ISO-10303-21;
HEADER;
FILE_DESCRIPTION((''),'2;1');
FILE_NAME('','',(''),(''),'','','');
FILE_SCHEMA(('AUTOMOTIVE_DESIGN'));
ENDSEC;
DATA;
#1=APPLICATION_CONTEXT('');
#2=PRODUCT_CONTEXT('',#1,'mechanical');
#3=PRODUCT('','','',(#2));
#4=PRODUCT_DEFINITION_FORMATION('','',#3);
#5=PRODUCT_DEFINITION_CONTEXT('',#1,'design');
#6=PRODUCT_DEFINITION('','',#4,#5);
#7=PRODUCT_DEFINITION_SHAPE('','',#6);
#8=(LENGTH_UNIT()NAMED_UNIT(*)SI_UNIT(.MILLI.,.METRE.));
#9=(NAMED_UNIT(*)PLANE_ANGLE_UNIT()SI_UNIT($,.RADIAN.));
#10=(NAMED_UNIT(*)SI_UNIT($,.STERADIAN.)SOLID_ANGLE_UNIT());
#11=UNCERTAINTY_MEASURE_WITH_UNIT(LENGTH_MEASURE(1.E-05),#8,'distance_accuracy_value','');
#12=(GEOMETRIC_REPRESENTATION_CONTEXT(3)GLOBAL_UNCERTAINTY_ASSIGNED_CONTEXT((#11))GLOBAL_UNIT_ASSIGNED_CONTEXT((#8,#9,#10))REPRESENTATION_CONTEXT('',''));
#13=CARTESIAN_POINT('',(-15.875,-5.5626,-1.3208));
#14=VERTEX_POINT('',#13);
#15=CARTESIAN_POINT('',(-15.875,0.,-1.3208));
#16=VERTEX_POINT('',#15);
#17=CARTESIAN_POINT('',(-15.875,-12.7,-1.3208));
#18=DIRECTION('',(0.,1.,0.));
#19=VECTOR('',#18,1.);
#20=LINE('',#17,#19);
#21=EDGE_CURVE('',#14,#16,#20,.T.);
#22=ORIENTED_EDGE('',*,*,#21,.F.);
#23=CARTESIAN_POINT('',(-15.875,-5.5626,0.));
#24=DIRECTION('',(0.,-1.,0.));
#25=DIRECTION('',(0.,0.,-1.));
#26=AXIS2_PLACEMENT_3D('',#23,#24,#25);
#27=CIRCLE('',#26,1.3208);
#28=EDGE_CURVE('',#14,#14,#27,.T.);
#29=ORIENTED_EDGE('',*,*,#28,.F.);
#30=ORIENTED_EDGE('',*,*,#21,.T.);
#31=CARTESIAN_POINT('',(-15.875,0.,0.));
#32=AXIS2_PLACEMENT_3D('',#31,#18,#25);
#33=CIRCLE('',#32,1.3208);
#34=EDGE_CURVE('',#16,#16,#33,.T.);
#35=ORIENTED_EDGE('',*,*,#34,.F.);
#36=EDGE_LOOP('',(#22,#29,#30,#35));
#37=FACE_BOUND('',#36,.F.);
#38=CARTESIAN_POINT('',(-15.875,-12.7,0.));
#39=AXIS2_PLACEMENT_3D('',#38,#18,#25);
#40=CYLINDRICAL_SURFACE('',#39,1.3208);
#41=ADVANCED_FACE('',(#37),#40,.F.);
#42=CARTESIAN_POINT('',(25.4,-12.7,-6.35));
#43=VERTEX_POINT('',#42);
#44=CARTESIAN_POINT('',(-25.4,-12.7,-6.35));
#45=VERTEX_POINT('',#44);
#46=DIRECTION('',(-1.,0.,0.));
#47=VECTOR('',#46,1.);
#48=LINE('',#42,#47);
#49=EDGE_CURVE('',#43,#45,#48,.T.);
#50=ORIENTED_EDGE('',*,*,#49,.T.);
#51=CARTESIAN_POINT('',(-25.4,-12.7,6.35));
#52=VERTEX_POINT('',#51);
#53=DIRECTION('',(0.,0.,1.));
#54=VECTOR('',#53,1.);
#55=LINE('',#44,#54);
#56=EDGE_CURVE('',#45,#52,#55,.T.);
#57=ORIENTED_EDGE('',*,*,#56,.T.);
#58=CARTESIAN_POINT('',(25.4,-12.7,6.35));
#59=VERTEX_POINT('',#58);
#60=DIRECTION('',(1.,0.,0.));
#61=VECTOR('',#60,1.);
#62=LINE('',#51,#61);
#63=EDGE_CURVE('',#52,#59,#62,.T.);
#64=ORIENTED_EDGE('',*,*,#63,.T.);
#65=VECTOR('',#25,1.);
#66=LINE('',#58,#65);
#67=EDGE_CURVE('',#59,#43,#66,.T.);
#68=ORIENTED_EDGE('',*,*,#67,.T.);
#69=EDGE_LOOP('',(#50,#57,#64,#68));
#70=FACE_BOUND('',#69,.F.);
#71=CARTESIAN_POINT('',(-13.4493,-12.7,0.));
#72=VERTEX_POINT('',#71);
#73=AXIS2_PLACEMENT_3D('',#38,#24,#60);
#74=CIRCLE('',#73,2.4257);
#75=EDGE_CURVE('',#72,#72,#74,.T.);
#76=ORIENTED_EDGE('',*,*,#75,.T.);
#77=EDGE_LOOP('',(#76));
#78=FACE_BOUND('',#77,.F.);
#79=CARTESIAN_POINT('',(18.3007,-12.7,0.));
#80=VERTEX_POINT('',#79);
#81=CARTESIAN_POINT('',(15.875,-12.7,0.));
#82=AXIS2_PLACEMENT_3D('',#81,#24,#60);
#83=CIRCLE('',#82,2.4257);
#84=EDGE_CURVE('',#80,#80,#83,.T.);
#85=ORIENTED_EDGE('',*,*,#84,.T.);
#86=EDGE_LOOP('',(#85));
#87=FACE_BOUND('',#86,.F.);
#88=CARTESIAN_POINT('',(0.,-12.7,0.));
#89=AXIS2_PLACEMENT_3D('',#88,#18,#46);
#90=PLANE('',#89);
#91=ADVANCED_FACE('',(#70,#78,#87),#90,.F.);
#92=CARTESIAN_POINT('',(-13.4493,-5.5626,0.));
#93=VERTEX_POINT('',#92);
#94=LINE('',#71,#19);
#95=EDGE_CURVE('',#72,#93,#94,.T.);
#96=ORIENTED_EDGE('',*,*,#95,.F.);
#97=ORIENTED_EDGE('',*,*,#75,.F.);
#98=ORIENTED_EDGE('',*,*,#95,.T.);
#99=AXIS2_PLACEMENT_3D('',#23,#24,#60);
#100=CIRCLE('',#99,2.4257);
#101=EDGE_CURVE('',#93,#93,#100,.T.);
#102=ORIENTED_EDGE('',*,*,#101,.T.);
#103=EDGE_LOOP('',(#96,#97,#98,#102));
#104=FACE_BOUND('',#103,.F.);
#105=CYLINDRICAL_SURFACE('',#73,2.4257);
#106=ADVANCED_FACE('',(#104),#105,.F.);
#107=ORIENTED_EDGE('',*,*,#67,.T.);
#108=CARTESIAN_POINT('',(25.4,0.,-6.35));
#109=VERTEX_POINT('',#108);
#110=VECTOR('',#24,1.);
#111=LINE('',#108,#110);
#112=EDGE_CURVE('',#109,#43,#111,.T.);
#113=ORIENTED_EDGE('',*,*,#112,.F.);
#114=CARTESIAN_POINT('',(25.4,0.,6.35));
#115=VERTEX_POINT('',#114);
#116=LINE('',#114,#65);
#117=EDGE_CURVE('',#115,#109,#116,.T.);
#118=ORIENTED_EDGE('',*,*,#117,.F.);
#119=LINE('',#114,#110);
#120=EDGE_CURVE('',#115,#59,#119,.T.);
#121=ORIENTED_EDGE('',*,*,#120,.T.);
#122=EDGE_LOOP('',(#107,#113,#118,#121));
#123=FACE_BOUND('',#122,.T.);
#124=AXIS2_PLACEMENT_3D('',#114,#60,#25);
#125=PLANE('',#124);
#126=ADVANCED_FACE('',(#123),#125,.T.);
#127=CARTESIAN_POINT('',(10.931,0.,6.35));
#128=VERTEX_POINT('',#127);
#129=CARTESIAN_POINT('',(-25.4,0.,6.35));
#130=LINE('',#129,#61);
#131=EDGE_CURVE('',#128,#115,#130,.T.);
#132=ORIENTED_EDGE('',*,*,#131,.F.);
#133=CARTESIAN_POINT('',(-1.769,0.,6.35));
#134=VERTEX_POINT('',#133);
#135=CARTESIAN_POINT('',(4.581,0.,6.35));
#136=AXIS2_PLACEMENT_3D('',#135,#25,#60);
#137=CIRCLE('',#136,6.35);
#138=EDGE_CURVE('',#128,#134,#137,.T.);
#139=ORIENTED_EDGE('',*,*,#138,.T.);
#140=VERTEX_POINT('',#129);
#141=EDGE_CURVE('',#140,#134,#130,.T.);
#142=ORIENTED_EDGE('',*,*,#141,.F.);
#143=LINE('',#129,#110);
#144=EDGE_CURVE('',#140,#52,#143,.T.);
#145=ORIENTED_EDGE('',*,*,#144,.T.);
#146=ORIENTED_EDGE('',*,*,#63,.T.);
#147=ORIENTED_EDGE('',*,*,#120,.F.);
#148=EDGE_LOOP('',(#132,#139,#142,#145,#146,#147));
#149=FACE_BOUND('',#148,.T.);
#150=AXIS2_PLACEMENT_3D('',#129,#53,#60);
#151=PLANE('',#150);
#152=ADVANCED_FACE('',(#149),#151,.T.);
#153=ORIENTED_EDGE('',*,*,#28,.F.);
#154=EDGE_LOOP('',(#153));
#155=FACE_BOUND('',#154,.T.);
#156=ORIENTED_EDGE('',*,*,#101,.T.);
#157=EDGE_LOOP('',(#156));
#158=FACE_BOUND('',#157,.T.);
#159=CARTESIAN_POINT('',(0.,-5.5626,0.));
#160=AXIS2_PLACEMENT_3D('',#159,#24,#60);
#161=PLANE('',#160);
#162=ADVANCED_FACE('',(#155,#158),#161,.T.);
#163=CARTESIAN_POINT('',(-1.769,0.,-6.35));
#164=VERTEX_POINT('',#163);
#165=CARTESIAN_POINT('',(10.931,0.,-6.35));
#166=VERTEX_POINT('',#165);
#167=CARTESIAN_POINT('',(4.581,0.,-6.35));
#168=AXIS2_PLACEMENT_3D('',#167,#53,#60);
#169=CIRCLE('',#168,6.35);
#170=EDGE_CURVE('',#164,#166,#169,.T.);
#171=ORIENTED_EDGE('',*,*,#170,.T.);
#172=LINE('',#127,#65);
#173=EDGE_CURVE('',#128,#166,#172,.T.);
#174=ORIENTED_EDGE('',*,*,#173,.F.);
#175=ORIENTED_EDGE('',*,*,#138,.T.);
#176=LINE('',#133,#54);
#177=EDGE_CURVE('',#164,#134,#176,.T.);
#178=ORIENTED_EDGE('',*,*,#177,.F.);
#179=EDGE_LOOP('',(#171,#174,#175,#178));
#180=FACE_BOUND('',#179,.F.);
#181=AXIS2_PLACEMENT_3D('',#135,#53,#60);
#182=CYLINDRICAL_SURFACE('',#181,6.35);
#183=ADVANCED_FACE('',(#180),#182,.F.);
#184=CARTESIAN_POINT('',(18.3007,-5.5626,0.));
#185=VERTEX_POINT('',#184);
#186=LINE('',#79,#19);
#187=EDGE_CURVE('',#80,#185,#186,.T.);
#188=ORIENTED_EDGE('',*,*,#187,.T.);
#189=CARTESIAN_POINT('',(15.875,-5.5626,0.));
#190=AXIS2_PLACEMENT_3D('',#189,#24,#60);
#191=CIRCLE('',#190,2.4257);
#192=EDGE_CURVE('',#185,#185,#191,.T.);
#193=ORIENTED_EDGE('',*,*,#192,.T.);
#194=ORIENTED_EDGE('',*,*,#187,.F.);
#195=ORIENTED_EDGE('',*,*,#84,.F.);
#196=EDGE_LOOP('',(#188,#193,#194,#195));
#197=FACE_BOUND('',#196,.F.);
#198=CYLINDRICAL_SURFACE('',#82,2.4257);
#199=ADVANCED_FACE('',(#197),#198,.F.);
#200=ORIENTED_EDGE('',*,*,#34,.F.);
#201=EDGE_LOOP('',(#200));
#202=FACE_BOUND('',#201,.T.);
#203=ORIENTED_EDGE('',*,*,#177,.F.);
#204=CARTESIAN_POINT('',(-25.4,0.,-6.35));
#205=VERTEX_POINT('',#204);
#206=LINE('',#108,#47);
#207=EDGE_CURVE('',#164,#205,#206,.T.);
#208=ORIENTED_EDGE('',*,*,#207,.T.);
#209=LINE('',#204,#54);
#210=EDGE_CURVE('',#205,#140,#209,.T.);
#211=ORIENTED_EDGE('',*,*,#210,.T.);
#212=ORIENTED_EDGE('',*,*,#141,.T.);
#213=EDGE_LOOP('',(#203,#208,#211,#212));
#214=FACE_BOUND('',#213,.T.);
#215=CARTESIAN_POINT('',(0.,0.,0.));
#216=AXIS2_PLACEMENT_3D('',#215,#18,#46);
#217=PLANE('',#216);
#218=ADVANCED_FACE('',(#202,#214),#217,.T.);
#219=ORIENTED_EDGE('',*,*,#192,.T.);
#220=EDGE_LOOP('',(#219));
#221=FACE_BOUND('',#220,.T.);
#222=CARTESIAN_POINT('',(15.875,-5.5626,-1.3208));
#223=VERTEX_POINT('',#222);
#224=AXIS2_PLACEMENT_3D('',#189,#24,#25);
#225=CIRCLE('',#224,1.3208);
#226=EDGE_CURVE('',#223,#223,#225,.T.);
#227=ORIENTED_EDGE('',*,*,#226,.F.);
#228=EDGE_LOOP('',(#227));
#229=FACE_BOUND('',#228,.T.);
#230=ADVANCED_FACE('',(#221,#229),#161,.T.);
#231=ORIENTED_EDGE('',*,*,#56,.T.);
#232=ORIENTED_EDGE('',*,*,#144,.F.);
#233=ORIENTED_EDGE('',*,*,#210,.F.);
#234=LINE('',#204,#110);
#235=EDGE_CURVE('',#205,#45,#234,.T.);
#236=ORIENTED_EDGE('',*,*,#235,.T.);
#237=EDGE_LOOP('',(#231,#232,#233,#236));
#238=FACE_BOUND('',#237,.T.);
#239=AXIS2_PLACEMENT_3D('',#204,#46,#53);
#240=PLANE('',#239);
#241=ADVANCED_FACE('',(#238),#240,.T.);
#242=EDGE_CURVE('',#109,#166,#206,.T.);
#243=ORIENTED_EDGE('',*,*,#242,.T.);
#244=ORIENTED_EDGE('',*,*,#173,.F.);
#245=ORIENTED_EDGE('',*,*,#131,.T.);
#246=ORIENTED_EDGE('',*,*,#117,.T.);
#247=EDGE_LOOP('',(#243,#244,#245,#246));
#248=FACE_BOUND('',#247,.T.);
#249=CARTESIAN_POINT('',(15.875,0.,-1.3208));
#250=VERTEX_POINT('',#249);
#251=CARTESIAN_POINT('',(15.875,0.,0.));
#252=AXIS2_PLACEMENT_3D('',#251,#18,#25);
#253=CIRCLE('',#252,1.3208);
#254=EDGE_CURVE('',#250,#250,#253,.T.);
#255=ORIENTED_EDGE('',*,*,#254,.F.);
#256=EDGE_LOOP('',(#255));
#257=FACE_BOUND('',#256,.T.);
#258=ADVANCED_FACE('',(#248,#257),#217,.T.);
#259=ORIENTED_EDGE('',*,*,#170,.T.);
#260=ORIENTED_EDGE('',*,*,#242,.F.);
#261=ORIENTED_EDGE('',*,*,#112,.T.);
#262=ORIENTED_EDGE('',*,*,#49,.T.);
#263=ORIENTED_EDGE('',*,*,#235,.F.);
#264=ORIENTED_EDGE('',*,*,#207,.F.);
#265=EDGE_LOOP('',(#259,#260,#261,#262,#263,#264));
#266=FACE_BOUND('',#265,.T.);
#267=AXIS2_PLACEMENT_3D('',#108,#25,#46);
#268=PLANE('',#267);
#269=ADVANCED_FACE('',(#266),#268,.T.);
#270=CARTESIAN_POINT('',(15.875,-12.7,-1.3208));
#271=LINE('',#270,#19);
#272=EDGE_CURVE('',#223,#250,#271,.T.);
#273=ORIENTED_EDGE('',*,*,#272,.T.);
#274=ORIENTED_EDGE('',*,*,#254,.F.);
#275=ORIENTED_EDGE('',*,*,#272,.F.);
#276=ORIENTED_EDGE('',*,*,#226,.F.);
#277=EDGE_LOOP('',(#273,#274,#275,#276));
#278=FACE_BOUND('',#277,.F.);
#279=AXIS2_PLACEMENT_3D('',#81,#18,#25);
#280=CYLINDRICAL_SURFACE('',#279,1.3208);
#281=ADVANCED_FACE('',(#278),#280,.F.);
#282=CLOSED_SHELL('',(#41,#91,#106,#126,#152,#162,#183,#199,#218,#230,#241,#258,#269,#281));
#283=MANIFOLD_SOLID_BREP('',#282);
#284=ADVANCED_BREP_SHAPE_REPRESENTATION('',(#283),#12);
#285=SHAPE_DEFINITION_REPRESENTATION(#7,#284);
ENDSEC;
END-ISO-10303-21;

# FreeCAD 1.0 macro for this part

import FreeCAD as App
import Part
import Sketcher

V = App.Vector
Q = App.Units.Quantity

doc = App.newDocument("Part")
params = doc.addObject("Spreadsheet::Sheet", "Params")
for row, (alias, value) in enumerate([
    ("sketch1_width", "2 in"),
    ("sketch1_height", "0.5 in"),
    ("pad1_length", "0.5 in"),
    ("sketch2_diameter", "0.5 in"),
    ("sketch3_diameter", "0.104 in"),
    ("hole_diameter", "0.104 in"),
    ("sketch4_diameter", "0.191 in"),
    ("sketch4_diameter2", "0.104 in"),
    ("pocket2_length", "0.281 in"),
], start=1):
    params.set(f"A{row}", alias)
    params.set(f"B{row}", "=" + value)
    params.setAlias(f"B{row}", alias)

body = doc.addObject("PartDesign::Body", "Body")

sketch1 = body.newObject("Sketcher::SketchObject", "Sketch")
sketch1.AttachmentSupport = (doc.getObject("XZ_Plane"), [""])
sketch1.MapMode = "FlatFace"
sketch1.addGeometry([
    Part.LineSegment(V(-25.4, -6.35, 0), V(-25.4, 6.35, 0)),
    Part.LineSegment(V(-25.4, 6.35, 0), V(25.4, 6.35, 0)),
    Part.LineSegment(V(25.4, 6.35, 0), V(25.4, -6.35, 0)),
    Part.LineSegment(V(25.4, -6.35, 0), V(-25.4, -6.35, 0)),
], False)
sketch1.addConstraint([
    Sketcher.Constraint("Coincident", 0, 2, 1, 1),
    Sketcher.Constraint("Coincident", 1, 2, 2, 1),
    Sketcher.Constraint("Coincident", 2, 2, 3, 1),
    Sketcher.Constraint("Coincident", 3, 2, 0, 1),
    Sketcher.Constraint("Vertical", 0),
    Sketcher.Constraint("Horizontal", 1),
    Sketcher.Constraint("Vertical", 2),
    Sketcher.Constraint("Horizontal", 3),
    Sketcher.Constraint("Symmetric", 0, 2, 2, 2, -1, 1),
    Sketcher.Constraint("DistanceX", 1, 1, 1, 2, Q("2 in")),
    Sketcher.Constraint("DistanceY", 0, 1, 0, 2, Q("0.5 in")),
])
sketch1.setExpression("Constraints[9]", "Params.sketch1_width")
sketch1.setExpression("Constraints[10]", "Params.sketch1_height")
pad1 = body.newObject("PartDesign::Pad", "Pad")
pad1.Profile = sketch1
pad1.setExpression("Length", "Params.pad1_length")

sketch2 = body.newObject("Sketcher::SketchObject", "Sketch001")
sketch2.AttachmentSupport = (doc.getObject("XY_Plane"), [""])
sketch2.MapMode = "FlatFace"
sketch2.AttachmentOffset = App.Placement(V(0, 0, 0.25 * 25.4), App.Rotation())
sketch2.addGeometry(Part.Circle(V(4.581, 0, 0), V(0, 0, 1), 6.35), False)
sketch2.addConstraint([
    Sketcher.Constraint("PointOnObject", 0, 3, -1),
    Sketcher.Constraint("Diameter", 0, Q("0.5 in")),
    Sketcher.Constraint("DistanceX", -1, 1, 0, 3, Q("4.581 mm")),
])
sketch2.setExpression("Constraints[1]", "Params.sketch2_diameter")
pocket1 = body.newObject("PartDesign::Pocket", "Pocket")
pocket1.Profile = sketch2
pocket1.Type = "ThroughAll"

sketch3 = body.newObject("Sketcher::SketchObject", "Sketch002")
sketch3.AttachmentSupport = (doc.getObject("XZ_Plane"), [""])
sketch3.MapMode = "FlatFace"
sketch3.AttachmentOffset = App.Placement(V(0, 0, 0.5 * 25.4), App.Rotation())
sketch3.addGeometry([
    Part.Circle(V(-15.875, 0, 0), V(0, 0, 1), 1.3208),
    Part.Circle(V(15.875, 0, 0), V(0, 0, 1), 1.3208),
], False)
sketch3.addConstraint([
    Sketcher.Constraint("Equal", 0, 1),
    Sketcher.Constraint("Symmetric", 0, 3, 1, 3, -1, 1),
    Sketcher.Constraint("PointOnObject", 0, 3, -1),
    Sketcher.Constraint("Diameter", 0, Q("0.104 in")),
    Sketcher.Constraint("DistanceX", 0, 3, 1, 3, Q("1.25 in")),
])
sketch3.setExpression("Constraints[3]", "Params.sketch3_diameter")
doc.recompute()
hole = body.newObject("PartDesign::Hole", "Hole")
hole.Profile = sketch3
hole.ThreadType = "None"
hole.setExpression("Diameter", "Params.hole_diameter")
hole.DepthType = "ThroughAll"

sketch4 = body.newObject("Sketcher::SketchObject", "Sketch003")
sketch4.AttachmentSupport = (doc.getObject("XZ_Plane"), [""])
sketch4.MapMode = "FlatFace"
sketch4.AttachmentOffset = App.Placement(V(0, 0, 0.5 * 25.4), App.Rotation())
sketch4.addGeometry([
    Part.Circle(V(-15.875, 0, 0), V(0, 0, 1), 2.4257),
    Part.Circle(V(-15.875, 0, 0), V(0, 0, 1), 1.3208),
    Part.Circle(V(15.875, 0, 0), V(0, 0, 1), 2.4257),
    Part.Circle(V(15.875, 0, 0), V(0, 0, 1), 1.3208),
], False)
sketch4.addConstraint([
    Sketcher.Constraint("Coincident", 1, 3, 0, 3),
    Sketcher.Constraint("Coincident", 3, 3, 2, 3),
    Sketcher.Constraint("Equal", 0, 2),
    Sketcher.Constraint("Equal", 1, 3),
    Sketcher.Constraint("Symmetric", 0, 3, 2, 3, -1, 1),
    Sketcher.Constraint("PointOnObject", 0, 3, -1),
    Sketcher.Constraint("Diameter", 0, Q("0.191 in")),
    Sketcher.Constraint("Diameter", 1, Q("0.104 in")),
    Sketcher.Constraint("DistanceX", 0, 3, 2, 3, Q("1.25 in")),
])
sketch4.setExpression("Constraints[6]", "Params.sketch4_diameter")
sketch4.setExpression("Constraints[7]", "Params.sketch4_diameter2")
pocket2 = body.newObject("PartDesign::Pocket", "Pocket001")
pocket2.Profile = sketch4
pocket2.setExpression("Length", "Params.pocket2_length")

doc.recompute()
